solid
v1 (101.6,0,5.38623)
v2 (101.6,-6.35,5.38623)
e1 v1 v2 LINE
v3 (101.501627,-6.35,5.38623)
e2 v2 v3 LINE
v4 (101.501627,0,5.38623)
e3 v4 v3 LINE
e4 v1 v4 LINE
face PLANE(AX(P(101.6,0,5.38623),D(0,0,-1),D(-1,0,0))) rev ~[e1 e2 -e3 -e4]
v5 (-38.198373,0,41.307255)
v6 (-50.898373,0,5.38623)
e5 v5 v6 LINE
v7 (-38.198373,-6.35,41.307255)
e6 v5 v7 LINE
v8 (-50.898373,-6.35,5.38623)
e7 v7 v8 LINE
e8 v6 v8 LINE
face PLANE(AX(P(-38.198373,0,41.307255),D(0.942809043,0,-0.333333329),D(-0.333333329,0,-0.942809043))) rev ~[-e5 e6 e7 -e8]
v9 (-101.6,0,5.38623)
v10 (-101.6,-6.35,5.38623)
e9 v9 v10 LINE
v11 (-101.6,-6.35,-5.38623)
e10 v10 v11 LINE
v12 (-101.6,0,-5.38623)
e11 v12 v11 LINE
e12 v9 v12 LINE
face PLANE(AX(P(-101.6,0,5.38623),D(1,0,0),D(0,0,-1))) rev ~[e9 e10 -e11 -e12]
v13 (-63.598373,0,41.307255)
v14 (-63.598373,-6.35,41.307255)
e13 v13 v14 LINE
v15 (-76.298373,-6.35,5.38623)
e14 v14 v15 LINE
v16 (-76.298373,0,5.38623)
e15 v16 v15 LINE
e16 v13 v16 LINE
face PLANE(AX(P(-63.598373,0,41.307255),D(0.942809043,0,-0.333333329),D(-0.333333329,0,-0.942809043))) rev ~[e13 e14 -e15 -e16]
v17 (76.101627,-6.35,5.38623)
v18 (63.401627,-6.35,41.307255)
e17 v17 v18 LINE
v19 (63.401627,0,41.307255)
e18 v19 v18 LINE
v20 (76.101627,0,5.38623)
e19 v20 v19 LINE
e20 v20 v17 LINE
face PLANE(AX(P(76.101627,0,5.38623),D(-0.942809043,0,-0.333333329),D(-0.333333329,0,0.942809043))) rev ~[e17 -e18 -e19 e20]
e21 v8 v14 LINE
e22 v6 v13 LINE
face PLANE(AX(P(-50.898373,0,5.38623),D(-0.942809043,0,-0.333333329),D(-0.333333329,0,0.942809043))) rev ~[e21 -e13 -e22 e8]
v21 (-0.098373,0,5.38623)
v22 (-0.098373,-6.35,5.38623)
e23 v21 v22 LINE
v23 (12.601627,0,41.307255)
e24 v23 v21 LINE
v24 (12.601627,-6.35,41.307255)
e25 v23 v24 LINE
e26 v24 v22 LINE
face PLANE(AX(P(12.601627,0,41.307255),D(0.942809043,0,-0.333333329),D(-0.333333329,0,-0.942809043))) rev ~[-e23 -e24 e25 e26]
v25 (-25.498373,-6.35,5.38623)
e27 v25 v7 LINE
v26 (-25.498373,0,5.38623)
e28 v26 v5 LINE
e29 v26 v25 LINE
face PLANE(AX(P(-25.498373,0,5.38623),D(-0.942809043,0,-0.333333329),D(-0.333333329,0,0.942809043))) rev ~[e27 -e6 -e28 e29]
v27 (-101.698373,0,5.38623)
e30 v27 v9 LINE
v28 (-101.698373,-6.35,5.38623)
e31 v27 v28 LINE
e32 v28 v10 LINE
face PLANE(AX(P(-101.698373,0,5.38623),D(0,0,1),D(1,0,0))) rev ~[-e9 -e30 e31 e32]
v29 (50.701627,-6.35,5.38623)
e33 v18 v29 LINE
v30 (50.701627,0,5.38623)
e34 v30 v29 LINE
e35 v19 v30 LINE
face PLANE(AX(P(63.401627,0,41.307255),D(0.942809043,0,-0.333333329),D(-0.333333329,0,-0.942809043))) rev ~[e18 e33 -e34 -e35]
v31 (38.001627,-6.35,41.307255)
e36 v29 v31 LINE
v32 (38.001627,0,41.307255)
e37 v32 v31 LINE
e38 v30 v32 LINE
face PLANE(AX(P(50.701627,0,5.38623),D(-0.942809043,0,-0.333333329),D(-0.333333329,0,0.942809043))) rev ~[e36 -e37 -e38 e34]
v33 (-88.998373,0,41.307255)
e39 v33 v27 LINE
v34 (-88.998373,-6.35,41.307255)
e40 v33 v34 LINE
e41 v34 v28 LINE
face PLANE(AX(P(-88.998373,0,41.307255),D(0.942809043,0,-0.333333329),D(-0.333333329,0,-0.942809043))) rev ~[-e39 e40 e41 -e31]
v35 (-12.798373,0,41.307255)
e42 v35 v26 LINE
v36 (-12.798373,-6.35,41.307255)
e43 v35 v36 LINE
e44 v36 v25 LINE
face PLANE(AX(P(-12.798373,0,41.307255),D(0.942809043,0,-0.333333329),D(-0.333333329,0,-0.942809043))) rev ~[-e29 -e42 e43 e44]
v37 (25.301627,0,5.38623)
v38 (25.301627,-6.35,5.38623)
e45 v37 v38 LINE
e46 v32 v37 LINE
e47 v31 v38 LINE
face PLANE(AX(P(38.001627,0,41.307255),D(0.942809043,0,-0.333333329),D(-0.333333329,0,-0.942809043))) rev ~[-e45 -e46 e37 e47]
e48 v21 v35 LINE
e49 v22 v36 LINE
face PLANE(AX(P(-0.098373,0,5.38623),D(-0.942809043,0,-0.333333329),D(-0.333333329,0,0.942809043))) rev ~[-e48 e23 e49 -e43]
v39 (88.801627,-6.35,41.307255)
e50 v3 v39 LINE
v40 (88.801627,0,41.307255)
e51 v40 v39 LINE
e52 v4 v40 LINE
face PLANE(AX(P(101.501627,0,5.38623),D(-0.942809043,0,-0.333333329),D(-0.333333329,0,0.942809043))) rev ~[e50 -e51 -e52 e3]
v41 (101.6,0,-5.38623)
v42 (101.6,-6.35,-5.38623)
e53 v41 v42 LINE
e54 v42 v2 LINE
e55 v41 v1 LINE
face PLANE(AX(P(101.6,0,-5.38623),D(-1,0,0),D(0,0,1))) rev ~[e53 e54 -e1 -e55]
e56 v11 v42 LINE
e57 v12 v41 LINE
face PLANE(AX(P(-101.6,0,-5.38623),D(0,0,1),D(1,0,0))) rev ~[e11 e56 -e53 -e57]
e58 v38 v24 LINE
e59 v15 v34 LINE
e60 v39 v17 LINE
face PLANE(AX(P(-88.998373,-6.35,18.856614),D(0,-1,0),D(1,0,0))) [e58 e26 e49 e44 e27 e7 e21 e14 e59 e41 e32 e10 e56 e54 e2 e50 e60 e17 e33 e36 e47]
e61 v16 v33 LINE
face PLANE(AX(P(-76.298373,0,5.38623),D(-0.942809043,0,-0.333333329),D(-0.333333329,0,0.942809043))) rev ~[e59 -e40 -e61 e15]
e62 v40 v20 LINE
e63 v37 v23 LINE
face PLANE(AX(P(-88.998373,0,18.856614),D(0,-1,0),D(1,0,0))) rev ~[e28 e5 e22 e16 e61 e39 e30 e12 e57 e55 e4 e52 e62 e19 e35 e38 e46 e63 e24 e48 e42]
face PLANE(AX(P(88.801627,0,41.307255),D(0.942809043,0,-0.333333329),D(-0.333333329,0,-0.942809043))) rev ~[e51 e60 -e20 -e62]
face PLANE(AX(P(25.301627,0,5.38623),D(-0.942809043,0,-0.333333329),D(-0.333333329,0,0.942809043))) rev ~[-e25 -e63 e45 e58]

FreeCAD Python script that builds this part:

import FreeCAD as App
import Part
import Sketcher

V = App.Vector
Q = App.Units.Quantity

doc = App.newDocument("Part")
body = doc.addObject("PartDesign::Body", "Body")

sketch1 = doc.addObject("Sketcher::SketchObject", "Sketch")
body.addObject(sketch1)
sketch1.AttachmentSupport = (doc.XZ_Plane, [""])
sketch1.MapMode = "FlatFace"
sketch1.addGeometry(Part.LineSegment(V(-101.7, 5.39, 0), V(-101.6, 5.39, 0)), False)
sketch1.addGeometry(Part.LineSegment(V(-101.6, 5.39, 0), V(-101.6, -5.39, 0)), False)
sketch1.addGeometry(Part.LineSegment(V(-101.6, -5.39, 0), V(101.6, -5.39, 0)), False)
sketch1.addGeometry(Part.LineSegment(V(101.6, -5.39, 0), V(101.6, 5.39, 0)), False)
sketch1.addGeometry(Part.LineSegment(V(101.6, 5.39, 0), V(101.5, 5.39, 0)), False)
sketch1.addGeometry(Part.LineSegment(V(101.5, 5.39, 0), V(88.8, 41.31, 0)), False)
sketch1.addGeometry(Part.LineSegment(V(88.8, 41.31, 0), V(76.1, 5.39, 0)), False)
sketch1.addGeometry(Part.LineSegment(V(76.1, 5.39, 0), V(63.4, 41.31, 0)), False)
sketch1.addGeometry(Part.LineSegment(V(63.4, 41.31, 0), V(50.7, 5.39, 0)), False)
sketch1.addGeometry(Part.LineSegment(V(50.7, 5.39, 0), V(38, 41.31, 0)), False)
sketch1.addGeometry(Part.LineSegment(V(38, 41.31, 0), V(25.3, 5.39, 0)), False)
sketch1.addGeometry(Part.LineSegment(V(25.3, 5.39, 0), V(12.6, 41.31, 0)), False)
sketch1.addGeometry(Part.LineSegment(V(12.6, 41.31, 0), V(-0.1, 5.39, 0)), False)
sketch1.addGeometry(Part.LineSegment(V(-0.1, 5.39, 0), V(-12.8, 41.31, 0)), False)
sketch1.addGeometry(Part.LineSegment(V(-12.8, 41.31, 0), V(-25.5, 5.39, 0)), False)
sketch1.addGeometry(Part.LineSegment(V(-25.5, 5.39, 0), V(-38.2, 41.31, 0)), False)
sketch1.addGeometry(Part.LineSegment(V(-38.2, 41.31, 0), V(-50.9, 5.39, 0)), False)
sketch1.addGeometry(Part.LineSegment(V(-50.9, 5.39, 0), V(-63.6, 41.31, 0)), False)
sketch1.addGeometry(Part.LineSegment(V(-63.6, 41.31, 0), V(-76.3, 5.39, 0)), False)
sketch1.addGeometry(Part.LineSegment(V(-76.3, 5.39, 0), V(-89, 41.31, 0)), False)
sketch1.addGeometry(Part.LineSegment(V(-89, 41.31, 0), V(-101.7, 5.39, 0)), False)
sketch1.addConstraint(Sketcher.Constraint("Coincident", 0, 2, 1, 1))
sketch1.addConstraint(Sketcher.Constraint("Coincident", 1, 2, 2, 1))
sketch1.addConstraint(Sketcher.Constraint("Coincident", 2, 2, 3, 1))
sketch1.addConstraint(Sketcher.Constraint("Coincident", 3, 2, 4, 1))
sketch1.addConstraint(Sketcher.Constraint("Coincident", 4, 2, 5, 1))
sketch1.addConstraint(Sketcher.Constraint("Coincident", 5, 2, 6, 1))
sketch1.addConstraint(Sketcher.Constraint("Coincident", 6, 2, 7, 1))
sketch1.addConstraint(Sketcher.Constraint("Coincident", 7, 2, 8, 1))
sketch1.addConstraint(Sketcher.Constraint("Coincident", 8, 2, 9, 1))
sketch1.addConstraint(Sketcher.Constraint("Coincident", 9, 2, 10, 1))
sketch1.addConstraint(Sketcher.Constraint("Coincident", 10, 2, 11, 1))
sketch1.addConstraint(Sketcher.Constraint("Coincident", 11, 2, 12, 1))
sketch1.addConstraint(Sketcher.Constraint("Coincident", 12, 2, 13, 1))
sketch1.addConstraint(Sketcher.Constraint("Coincident", 13, 2, 14, 1))
sketch1.addConstraint(Sketcher.Constraint("Coincident", 14, 2, 15, 1))
sketch1.addConstraint(Sketcher.Constraint("Coincident", 15, 2, 16, 1))
sketch1.addConstraint(Sketcher.Constraint("Coincident", 16, 2, 17, 1))
sketch1.addConstraint(Sketcher.Constraint("Coincident", 17, 2, 18, 1))
sketch1.addConstraint(Sketcher.Constraint("Coincident", 18, 2, 19, 1))
sketch1.addConstraint(Sketcher.Constraint("Coincident", 19, 2, 20, 1))
sketch1.addConstraint(Sketcher.Constraint("Coincident", 20, 2, 0, 1))
sketch1.addConstraint(Sketcher.Constraint("Horizontal", 0))
sketch1.addConstraint(Sketcher.Constraint("Vertical", 1))
sketch1.addConstraint(Sketcher.Constraint("Horizontal", 2))
sketch1.addConstraint(Sketcher.Constraint("Vertical", 3))
sketch1.addConstraint(Sketcher.Constraint("Horizontal", 4))
sketch1.addConstraint(Sketcher.Constraint("Symmetric", 0, 2, 2, 2, -1, 1))
sketch1.addConstraint(Sketcher.Constraint("Parallel", 5, 7))
sketch1.addConstraint(Sketcher.Constraint("Parallel", 6, 8))
sketch1.addConstraint(Sketcher.Constraint("Parallel", 7, 9))
sketch1.addConstraint(Sketcher.Constraint("Parallel", 8, 10))
sketch1.addConstraint(Sketcher.Constraint("Parallel", 9, 11))
sketch1.addConstraint(Sketcher.Constraint("Parallel", 10, 12))
sketch1.addConstraint(Sketcher.Constraint("Parallel", 11, 13))
sketch1.addConstraint(Sketcher.Constraint("Parallel", 12, 14))
sketch1.addConstraint(Sketcher.Constraint("Parallel", 13, 15))
sketch1.addConstraint(Sketcher.Constraint("Parallel", 14, 16))
sketch1.addConstraint(Sketcher.Constraint("Parallel", 15, 17))
sketch1.addConstraint(Sketcher.Constraint("Parallel", 16, 18))
sketch1.addConstraint(Sketcher.Constraint("Parallel", 17, 19))
sketch1.addConstraint(Sketcher.Constraint("Parallel", 18, 20))
sketch1.addConstraint(Sketcher.Constraint("Horizontal", 0, 2, 3, 2))
sketch1.addConstraint(Sketcher.Constraint("Horizontal", 4, 2, 6, 2))
sketch1.addConstraint(Sketcher.Constraint("Horizontal", 5, 2, 7, 2))
sketch1.addConstraint(Sketcher.Constraint("Horizontal", 6, 2, 8, 2))
sketch1.addConstraint(Sketcher.Constraint("Horizontal", 7, 2, 9, 2))
sketch1.addConstraint(Sketcher.Constraint("Horizontal", 8, 2, 10, 2))
sketch1.addConstraint(Sketcher.Constraint("Horizontal", 9, 2, 11, 2))
sketch1.addConstraint(Sketcher.Constraint("Horizontal", 10, 2, 12, 2))
sketch1.addConstraint(Sketcher.Constraint("Horizontal", 11, 2, 13, 2))
sketch1.addConstraint(Sketcher.Constraint("Horizontal", 12, 2, 14, 2))
sketch1.addConstraint(Sketcher.Constraint("Horizontal", 13, 2, 15, 2))
sketch1.addConstraint(Sketcher.Constraint("Horizontal", 14, 2, 16, 2))
sketch1.addConstraint(Sketcher.Constraint("Horizontal", 15, 2, 17, 2))
sketch1.addConstraint(Sketcher.Constraint("Horizontal", 16, 2, 18, 2))
sketch1.addConstraint(Sketcher.Constraint("Horizontal", 17, 2, 19, 2))
sketch1.addConstraint(Sketcher.Constraint("Equal", 0, 4))
sketch1.addConstraint(Sketcher.Constraint("Equal", 5, 6))
sketch1.addConstraint(Sketcher.Constraint("DistanceX", 2, 1, 2, 2, Q("8 in")))
sketch1.addConstraint(Sketcher.Constraint("Distance", 5, Q("1.5 in")))
sketch1.addConstraint(Sketcher.Constraint("DistanceY", 1, 2, 1, 1, 10.77246))
sketch1.addConstraint(Sketcher.Constraint("DistanceX", 0, 1, 0, 2, 0.098373))
pad1 = doc.addObject("PartDesign::Pad", "Pad")
body.addObject(pad1)
pad1.Profile = sketch1
pad1.Length = Q("0.25 in")

doc.recompute()
